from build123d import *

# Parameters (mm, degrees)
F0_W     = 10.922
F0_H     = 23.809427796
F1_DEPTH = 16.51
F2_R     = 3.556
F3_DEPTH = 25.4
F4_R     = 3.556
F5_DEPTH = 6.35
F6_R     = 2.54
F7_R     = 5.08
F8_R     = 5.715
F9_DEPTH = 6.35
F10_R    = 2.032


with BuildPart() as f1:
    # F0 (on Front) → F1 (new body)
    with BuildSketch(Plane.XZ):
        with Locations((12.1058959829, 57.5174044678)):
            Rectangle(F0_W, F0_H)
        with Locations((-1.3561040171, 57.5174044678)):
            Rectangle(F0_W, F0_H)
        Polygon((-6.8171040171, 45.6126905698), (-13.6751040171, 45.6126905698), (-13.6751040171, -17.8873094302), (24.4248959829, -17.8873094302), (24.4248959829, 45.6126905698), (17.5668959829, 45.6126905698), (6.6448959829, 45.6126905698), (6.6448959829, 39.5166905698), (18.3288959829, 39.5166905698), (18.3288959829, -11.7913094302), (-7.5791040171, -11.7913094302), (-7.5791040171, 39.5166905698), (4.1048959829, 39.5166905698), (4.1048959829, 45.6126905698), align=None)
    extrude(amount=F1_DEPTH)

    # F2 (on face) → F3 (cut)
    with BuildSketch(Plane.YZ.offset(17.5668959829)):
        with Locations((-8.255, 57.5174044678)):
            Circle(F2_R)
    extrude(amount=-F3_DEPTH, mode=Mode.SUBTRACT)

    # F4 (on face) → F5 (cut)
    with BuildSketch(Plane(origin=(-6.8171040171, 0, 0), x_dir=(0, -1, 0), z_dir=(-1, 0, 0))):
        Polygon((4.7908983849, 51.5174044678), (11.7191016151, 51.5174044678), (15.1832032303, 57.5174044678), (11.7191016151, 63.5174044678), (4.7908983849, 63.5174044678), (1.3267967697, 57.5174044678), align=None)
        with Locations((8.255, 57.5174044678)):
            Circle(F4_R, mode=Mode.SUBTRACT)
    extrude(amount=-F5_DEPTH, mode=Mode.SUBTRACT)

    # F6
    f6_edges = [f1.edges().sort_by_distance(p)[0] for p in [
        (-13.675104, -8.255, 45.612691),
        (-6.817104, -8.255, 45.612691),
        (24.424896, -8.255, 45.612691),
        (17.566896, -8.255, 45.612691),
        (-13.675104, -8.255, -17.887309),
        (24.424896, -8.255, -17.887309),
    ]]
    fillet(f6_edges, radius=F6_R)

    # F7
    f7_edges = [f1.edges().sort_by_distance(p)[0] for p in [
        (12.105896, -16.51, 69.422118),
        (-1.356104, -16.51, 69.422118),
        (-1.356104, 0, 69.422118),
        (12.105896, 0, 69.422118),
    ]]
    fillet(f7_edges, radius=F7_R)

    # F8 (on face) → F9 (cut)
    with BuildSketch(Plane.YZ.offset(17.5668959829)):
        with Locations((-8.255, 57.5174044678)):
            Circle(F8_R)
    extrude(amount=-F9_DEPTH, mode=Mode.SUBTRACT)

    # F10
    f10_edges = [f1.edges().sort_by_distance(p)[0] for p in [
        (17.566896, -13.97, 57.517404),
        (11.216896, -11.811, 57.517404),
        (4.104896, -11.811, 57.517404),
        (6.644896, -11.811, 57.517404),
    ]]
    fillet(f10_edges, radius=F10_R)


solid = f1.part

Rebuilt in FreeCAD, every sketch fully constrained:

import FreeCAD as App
import Part
import Sketcher

V = App.Vector
Q = App.Units.Quantity


def edges_at(feature, points):
    """Names of the edges that pass closest to the given points."""
    edges = feature.Shape.Edges
    near = lambda p: min(range(len(edges)), key=lambda i: edges[i].distToShape(Part.Vertex(*p))[0])
    return sorted({f"Edge{near(p) + 1}" for p in points})


def add_polygon(sketch, points):
    """Adds a closed chain of lines whose ends are joined by coincident constraints."""
    first, n = sketch.GeometryCount, len(points)
    for a, b in zip(points, points[1:] + points[:1]):
        sketch.addGeometry(Part.LineSegment(App.Vector(*a, 0), App.Vector(*b, 0)), False)
    for i in range(n):
        sketch.addConstraint(Sketcher.Constraint("Coincident", first + i, 2, first + (i + 1) % n, 1))

doc = App.newDocument("Part")
body = doc.addObject("PartDesign::Body", "Body")

sketch1 = doc.addObject("Sketcher::SketchObject", "Sketch")
body.addObject(sketch1)
sketch1.AttachmentSupport = (doc.XZ_Plane, [""])
sketch1.MapMode = "FlatFace"
add_polygon(sketch1, [(6.644896, 69.422118), (6.644896, 39.516691), (18.328896, 39.516691), (18.328896, -11.791309), (-7.579104, -11.791309), (-7.579104, 39.516691), (4.104896, 39.516691), (4.104896, 69.422118), (-6.817104, 69.422118), (-6.817104, 45.612691), (-13.675104, 45.612691), (-13.675104, -17.887309), (24.424896, -17.887309), (24.424896, 45.612691), (17.566896, 45.612691), (17.566896, 69.422118)])
sketch1.addConstraint([
    Sketcher.Constraint("Vertical", 0),
    Sketcher.Constraint("Horizontal", 1),
    Sketcher.Constraint("Vertical", 2),
    Sketcher.Constraint("Horizontal", 3),
    Sketcher.Constraint("Vertical", 4),
    Sketcher.Constraint("Horizontal", 5),
    Sketcher.Constraint("Vertical", 6),
    Sketcher.Constraint("Horizontal", 7),
    Sketcher.Constraint("Vertical", 8),
    Sketcher.Constraint("Horizontal", 9),
    Sketcher.Constraint("Vertical", 10),
    Sketcher.Constraint("Horizontal", 11),
    Sketcher.Constraint("Vertical", 12),
    Sketcher.Constraint("Horizontal", 13),
    Sketcher.Constraint("Vertical", 14),
    Sketcher.Constraint("Horizontal", 15),
    Sketcher.Constraint("Horizontal", 1, 2, 4, 2),
    Sketcher.Constraint("Horizontal", 9, 2, 12, 2),
    Sketcher.Constraint("Horizontal", 7, 2, 14, 2),
    Sketcher.Constraint("Equal", 1, 5),
    Sketcher.Constraint("Equal", 9, 13),
    Sketcher.Constraint("Equal", 7, 15),
    Sketcher.Constraint("DistanceX", 11, 1, 11, 2, Q("1.5 in")),
    Sketcher.Constraint("DistanceY", 10, 2, 10, 1, Q("2.5 in")),
    Sketcher.Constraint("DistanceX", 1, 1, 1, 2, Q("0.46 in")),
    Sketcher.Constraint("DistanceX", 3, 2, 3, 1, Q("1.02 in")),
    Sketcher.Constraint("DistanceX", 7, 2, 7, 1, Q("0.43 in")),
    Sketcher.Constraint("DistanceY", 2, 2, 2, 1, Q("2.02 in")),
    Sketcher.Constraint("DistanceY", 4, 2, 8, 2, Q("0.24 in")),
    Sketcher.Constraint("DistanceY", 0, 2, 0, 1, Q("29.905428 mm")),
    Sketcher.Constraint("DistanceY", -1, 1, 0, 2, Q("39.516691 mm")),
    Sketcher.Constraint("DistanceX", -1, 1, 0, 2, Q("6.644896 mm")),
])
pad1 = doc.addObject("PartDesign::Pad", "Pad")
body.addObject(pad1)
pad1.Profile = sketch1
pad1.Length = Q("0.65 in")

sketch2 = doc.addObject("Sketcher::SketchObject", "Sketch001")
body.addObject(sketch2)
sketch2.AttachmentSupport = (doc.YZ_Plane, [""])
sketch2.MapMode = "FlatFace"
sketch2.AttachmentOffset = App.Placement(V(0, 0, 17.566896), App.Rotation())
sketch2.addGeometry(Part.Circle(V(-8.255, 57.517404, 0), V(0, 0, 1), 3.556), False)
sketch2.addConstraint([
    Sketcher.Constraint("Diameter", 0, Q("0.28 in")),
    Sketcher.Constraint("DistanceX", 0, 3, -1, 1, Q("0.325 in")),
    Sketcher.Constraint("DistanceY", -1, 1, 0, 3, Q("57.517404 mm")),
])
pocket1 = doc.addObject("PartDesign::Pocket", "Pocket")
body.addObject(pocket1)
pocket1.Profile = sketch2
pocket1.Length = Q("1 in")

sketch3 = doc.addObject("Sketcher::SketchObject", "Sketch002")
body.addObject(sketch3)
sketch3.AttachmentSupport = (doc.YZ_Plane, [""])
sketch3.MapMode = "FlatFace"
sketch3.AttachmentOffset = App.Placement(V(0, 0, -6.817104), App.Rotation())
add_polygon(sketch3, [(-4.790898, 51.517404), (-11.719102, 51.517404), (-15.183203, 57.517404), (-11.719102, 63.517404), (-4.790898, 63.517404), (-1.326797, 57.517404)])
sketch3.addGeometry(Part.Circle(V(-8.255, 57.517404, 0), V(0, 0, 1), 3.556), False)
sketch3.addConstraint([
    Sketcher.Constraint("Horizontal", 0),
    Sketcher.Constraint("Horizontal", 3),
    Sketcher.Constraint("Parallel", 1, 4),
    Sketcher.Constraint("Parallel", 2, 5),
    Sketcher.Constraint("Horizontal", 6, 3, 1, 2),
    Sketcher.Constraint("Horizontal", 1, 2, 4, 2),
    Sketcher.Constraint("Vertical", 0, 2, 2, 2),
    Sketcher.Constraint("Vertical", 3, 2, 5, 2),
    Sketcher.Constraint("Diameter", 6, Q("0.28 in")),
    Sketcher.Constraint("Angle", 1, Q("120 deg")),
    Sketcher.Constraint("DistanceX", 6, 3, -1, 1, Q("0.325 in")),
    Sketcher.Constraint("DistanceX", 0, 2, -1, 1, Q("11.719102 mm")),
    Sketcher.Constraint("DistanceX", 3, 2, -1, 1, Q("4.790898 mm")),
    Sketcher.Constraint("DistanceY", 0, 2, 6, 3, Q("6 mm")),
    Sketcher.Constraint("DistanceY", -1, 1, 6, 3, Q("57.517404 mm")),
])
pocket2 = doc.addObject("PartDesign::Pocket", "Pocket001")
body.addObject(pocket2)
pocket2.Profile = sketch3
pocket2.Length = Q("0.25 in")
pocket2.Reversed = True
doc.recompute()

fillet = doc.addObject("PartDesign::Fillet", "Fillet")
body.addObject(fillet)
fillet.Base = (pocket2, edges_at(pocket2, [
    (-13.675, -8.255, 45.613),
    (-6.817, -8.255, 45.613),
    (24.425, -8.255, 45.613),
    (17.567, -8.255, 45.613),
    (-13.675, -8.255, -17.887),
    (24.425, -8.255, -17.887),
]))
fillet.Radius = Q("0.1 in")
doc.recompute()

fillet2 = doc.addObject("PartDesign::Fillet", "Fillet001")
body.addObject(fillet2)
fillet2.Base = (fillet, edges_at(fillet, [
    (12.106, -16.51, 69.422),
    (-1.356, -16.51, 69.422),
    (-1.356, 0, 69.422),
    (12.106, 0, 69.422),
]))
fillet2.Radius = Q("0.2 in")

sketch4 = doc.addObject("Sketcher::SketchObject", "Sketch003")
body.addObject(sketch4)
sketch4.AttachmentSupport = (doc.YZ_Plane, [""])
sketch4.MapMode = "FlatFace"
sketch4.AttachmentOffset = App.Placement(V(0, 0, 17.566896), App.Rotation())
sketch4.addGeometry(Part.Circle(V(-8.255, 57.517404, 0), V(0, 0, 1), 5.715), False)
sketch4.addConstraint([
    Sketcher.Constraint("Diameter", 0, Q("0.45 in")),
    Sketcher.Constraint("DistanceX", 0, 3, -1, 1, Q("0.325 in")),
    Sketcher.Constraint("DistanceY", -1, 1, 0, 3, Q("57.517404 mm")),
])
pocket3 = doc.addObject("PartDesign::Pocket", "Pocket002")
body.addObject(pocket3)
pocket3.Profile = sketch4
pocket3.Length = Q("0.25 in")
doc.recompute()

fillet3 = doc.addObject("PartDesign::Fillet", "Fillet002")
body.addObject(fillet3)
fillet3.Base = (pocket3, edges_at(pocket3, [
    (17.567, -13.97, 57.517),
    (11.217, -11.811, 57.517),
    (4.105, -11.811, 57.517),
    (6.645, -11.811, 57.517),
]))
fillet3.Radius = Q("0.08 in")

doc.recompute()
